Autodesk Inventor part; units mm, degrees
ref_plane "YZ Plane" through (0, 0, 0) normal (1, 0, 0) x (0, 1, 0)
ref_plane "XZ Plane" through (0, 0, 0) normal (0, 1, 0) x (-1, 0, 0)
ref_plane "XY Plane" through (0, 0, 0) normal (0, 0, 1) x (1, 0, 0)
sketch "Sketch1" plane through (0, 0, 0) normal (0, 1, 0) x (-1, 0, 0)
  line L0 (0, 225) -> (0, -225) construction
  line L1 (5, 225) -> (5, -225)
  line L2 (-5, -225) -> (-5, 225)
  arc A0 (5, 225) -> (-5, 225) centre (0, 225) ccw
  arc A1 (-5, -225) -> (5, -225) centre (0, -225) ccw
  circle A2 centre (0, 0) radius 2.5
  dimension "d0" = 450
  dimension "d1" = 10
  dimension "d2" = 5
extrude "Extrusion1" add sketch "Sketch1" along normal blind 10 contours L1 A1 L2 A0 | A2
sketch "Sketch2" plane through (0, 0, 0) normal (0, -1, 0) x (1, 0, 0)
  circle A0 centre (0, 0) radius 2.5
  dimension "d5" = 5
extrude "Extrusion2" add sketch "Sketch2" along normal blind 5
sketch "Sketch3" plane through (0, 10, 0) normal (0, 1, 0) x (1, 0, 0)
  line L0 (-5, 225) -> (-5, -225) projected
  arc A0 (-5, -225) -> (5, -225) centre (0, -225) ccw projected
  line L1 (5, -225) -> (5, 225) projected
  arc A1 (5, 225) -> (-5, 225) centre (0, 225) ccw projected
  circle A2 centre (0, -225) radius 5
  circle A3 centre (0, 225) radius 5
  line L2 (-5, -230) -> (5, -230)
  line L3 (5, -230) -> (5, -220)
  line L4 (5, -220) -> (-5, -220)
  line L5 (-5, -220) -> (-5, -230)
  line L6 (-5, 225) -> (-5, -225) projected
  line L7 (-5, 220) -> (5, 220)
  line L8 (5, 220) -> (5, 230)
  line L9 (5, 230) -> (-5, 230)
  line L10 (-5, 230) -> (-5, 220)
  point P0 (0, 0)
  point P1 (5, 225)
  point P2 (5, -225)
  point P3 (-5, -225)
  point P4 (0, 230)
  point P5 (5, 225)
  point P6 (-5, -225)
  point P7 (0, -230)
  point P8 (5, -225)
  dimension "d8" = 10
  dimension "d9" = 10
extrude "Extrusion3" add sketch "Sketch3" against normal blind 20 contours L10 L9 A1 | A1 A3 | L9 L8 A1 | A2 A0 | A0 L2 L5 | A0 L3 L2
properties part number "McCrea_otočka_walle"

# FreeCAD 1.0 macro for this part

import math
import FreeCAD as App
import Part
import Sketcher

doc = App.newDocument("Part")
body = doc.addObject("PartDesign::Body", "Body")

sketch1 = body.newObject("Sketcher::SketchObject", "Sketch")
sketch1.AttachmentSupport = (doc.getObject("XZ_Plane"), [""])
sketch1.MapMode = "FlatFace"
sketch1.addGeometry([
    Part.LineSegment(App.Vector(-5, -225, 0), App.Vector(-5, 225, 0)),
    Part.ArcOfCircle(Part.Circle(App.Vector(0, 225, 0), App.Vector(0, 0, 1), 5), math.radians(0), math.radians(180)),
    Part.LineSegment(App.Vector(5, 225, 0), App.Vector(5, -225, 0)),
    Part.ArcOfCircle(Part.Circle(App.Vector(0, -225, 0), App.Vector(0, 0, 1), 5), math.radians(180), math.radians(360)),
], False)
sketch1.addConstraint([
    Sketcher.Constraint("Tangent", 0, 2, 1, 2),
    Sketcher.Constraint("Tangent", 1, 1, 2, 1),
    Sketcher.Constraint("Tangent", 2, 2, 3, 2),
    Sketcher.Constraint("Tangent", 3, 1, 0, 1),
    Sketcher.Constraint("Vertical", 0),
    Sketcher.Constraint("Vertical", 2),
    Sketcher.Constraint("Symmetric", 1, 3, 3, 3, -1, 1),
    Sketcher.Constraint("Radius", 1, 5.0),
    Sketcher.Constraint("DistanceY", 0, 1, 0, 2, 450.0),
])
pad1 = body.newObject("PartDesign::Pad", "Pad")
pad1.Profile = sketch1
pad1.Length = 10
pad1.Reversed = True

sketch2 = body.newObject("Sketcher::SketchObject", "Sketch001")
sketch2.AttachmentSupport = (doc.getObject("XZ_Plane"), [""])
sketch2.MapMode = "FlatFace"
sketch2.addGeometry(Part.Circle(App.Vector(0, 0, 0), App.Vector(0, 0, 1), 2.5), False)
sketch2.addConstraint([
    Sketcher.Constraint("Coincident", 0, 3, -1, 1),
    Sketcher.Constraint("Diameter", 0, 5.0),
])
pad2 = body.newObject("PartDesign::Pad", "Pad001")
pad2.Profile = sketch2
pad2.Length = 5

sketch3 = body.newObject("Sketcher::SketchObject", "Sketch002")
sketch3.AttachmentSupport = (doc.getObject("XZ_Plane"), [""])
sketch3.MapMode = "FlatFace"
sketch3.AttachmentOffset = App.Placement(App.Vector(0, 0, -10), App.Rotation())
sketch3.addGeometry([
    Part.LineSegment(App.Vector(-5, -230, 0), App.Vector(-5, -225, 0)),
    Part.ArcOfCircle(Part.Circle(App.Vector(0, -225, 0), App.Vector(0, 0, 1), 5), math.radians(0), math.radians(180)),
    Part.LineSegment(App.Vector(5, -225, 0), App.Vector(5, -230, 0)),
    Part.LineSegment(App.Vector(5, -230, 0), App.Vector(-5, -230, 0)),
    Part.LineSegment(App.Vector(-5, 225, 0), App.Vector(-5, 230, 0)),
    Part.LineSegment(App.Vector(-5, 230, 0), App.Vector(5, 230, 0)),
    Part.LineSegment(App.Vector(5, 230, 0), App.Vector(5, 225, 0)),
    Part.ArcOfCircle(Part.Circle(App.Vector(0, 225, 0), App.Vector(0, 0, 1), 5), math.radians(180), math.radians(360)),
], False)
sketch3.addConstraint([
    Sketcher.Constraint("Tangent", 0, 2, 1, 2),
    Sketcher.Constraint("Tangent", 1, 1, 2, 1),
    Sketcher.Constraint("Coincident", 2, 2, 3, 1),
    Sketcher.Constraint("Coincident", 3, 2, 0, 1),
    Sketcher.Constraint("Coincident", 4, 2, 5, 1),
    Sketcher.Constraint("Coincident", 5, 2, 6, 1),
    Sketcher.Constraint("Tangent", 6, 2, 7, 2),
    Sketcher.Constraint("Tangent", 7, 1, 4, 1),
    Sketcher.Constraint("Vertical", 0),
    Sketcher.Constraint("Vertical", 2),
    Sketcher.Constraint("Horizontal", 3),
    Sketcher.Constraint("Vertical", 4),
    Sketcher.Constraint("Horizontal", 5),
    Sketcher.Constraint("Vertical", 6),
    Sketcher.Constraint("Equal", 1, 7),
    Sketcher.Constraint("Symmetric", 1, 3, 7, 3, -1, 1),
    Sketcher.Constraint("Symmetric", 3, 2, 4, 2, -1),
    Sketcher.Constraint("Radius", 1, 5.0),
    Sketcher.Constraint("DistanceY", 0, 1, 0, 2, 5.0),
    Sketcher.Constraint("DistanceY", 1, 3, -1, 1, 225.0),
])
pad3 = body.newObject("PartDesign::Pad", "Pad002")
pad3.Profile = sketch3
pad3.Length = 20

doc.recompute()
